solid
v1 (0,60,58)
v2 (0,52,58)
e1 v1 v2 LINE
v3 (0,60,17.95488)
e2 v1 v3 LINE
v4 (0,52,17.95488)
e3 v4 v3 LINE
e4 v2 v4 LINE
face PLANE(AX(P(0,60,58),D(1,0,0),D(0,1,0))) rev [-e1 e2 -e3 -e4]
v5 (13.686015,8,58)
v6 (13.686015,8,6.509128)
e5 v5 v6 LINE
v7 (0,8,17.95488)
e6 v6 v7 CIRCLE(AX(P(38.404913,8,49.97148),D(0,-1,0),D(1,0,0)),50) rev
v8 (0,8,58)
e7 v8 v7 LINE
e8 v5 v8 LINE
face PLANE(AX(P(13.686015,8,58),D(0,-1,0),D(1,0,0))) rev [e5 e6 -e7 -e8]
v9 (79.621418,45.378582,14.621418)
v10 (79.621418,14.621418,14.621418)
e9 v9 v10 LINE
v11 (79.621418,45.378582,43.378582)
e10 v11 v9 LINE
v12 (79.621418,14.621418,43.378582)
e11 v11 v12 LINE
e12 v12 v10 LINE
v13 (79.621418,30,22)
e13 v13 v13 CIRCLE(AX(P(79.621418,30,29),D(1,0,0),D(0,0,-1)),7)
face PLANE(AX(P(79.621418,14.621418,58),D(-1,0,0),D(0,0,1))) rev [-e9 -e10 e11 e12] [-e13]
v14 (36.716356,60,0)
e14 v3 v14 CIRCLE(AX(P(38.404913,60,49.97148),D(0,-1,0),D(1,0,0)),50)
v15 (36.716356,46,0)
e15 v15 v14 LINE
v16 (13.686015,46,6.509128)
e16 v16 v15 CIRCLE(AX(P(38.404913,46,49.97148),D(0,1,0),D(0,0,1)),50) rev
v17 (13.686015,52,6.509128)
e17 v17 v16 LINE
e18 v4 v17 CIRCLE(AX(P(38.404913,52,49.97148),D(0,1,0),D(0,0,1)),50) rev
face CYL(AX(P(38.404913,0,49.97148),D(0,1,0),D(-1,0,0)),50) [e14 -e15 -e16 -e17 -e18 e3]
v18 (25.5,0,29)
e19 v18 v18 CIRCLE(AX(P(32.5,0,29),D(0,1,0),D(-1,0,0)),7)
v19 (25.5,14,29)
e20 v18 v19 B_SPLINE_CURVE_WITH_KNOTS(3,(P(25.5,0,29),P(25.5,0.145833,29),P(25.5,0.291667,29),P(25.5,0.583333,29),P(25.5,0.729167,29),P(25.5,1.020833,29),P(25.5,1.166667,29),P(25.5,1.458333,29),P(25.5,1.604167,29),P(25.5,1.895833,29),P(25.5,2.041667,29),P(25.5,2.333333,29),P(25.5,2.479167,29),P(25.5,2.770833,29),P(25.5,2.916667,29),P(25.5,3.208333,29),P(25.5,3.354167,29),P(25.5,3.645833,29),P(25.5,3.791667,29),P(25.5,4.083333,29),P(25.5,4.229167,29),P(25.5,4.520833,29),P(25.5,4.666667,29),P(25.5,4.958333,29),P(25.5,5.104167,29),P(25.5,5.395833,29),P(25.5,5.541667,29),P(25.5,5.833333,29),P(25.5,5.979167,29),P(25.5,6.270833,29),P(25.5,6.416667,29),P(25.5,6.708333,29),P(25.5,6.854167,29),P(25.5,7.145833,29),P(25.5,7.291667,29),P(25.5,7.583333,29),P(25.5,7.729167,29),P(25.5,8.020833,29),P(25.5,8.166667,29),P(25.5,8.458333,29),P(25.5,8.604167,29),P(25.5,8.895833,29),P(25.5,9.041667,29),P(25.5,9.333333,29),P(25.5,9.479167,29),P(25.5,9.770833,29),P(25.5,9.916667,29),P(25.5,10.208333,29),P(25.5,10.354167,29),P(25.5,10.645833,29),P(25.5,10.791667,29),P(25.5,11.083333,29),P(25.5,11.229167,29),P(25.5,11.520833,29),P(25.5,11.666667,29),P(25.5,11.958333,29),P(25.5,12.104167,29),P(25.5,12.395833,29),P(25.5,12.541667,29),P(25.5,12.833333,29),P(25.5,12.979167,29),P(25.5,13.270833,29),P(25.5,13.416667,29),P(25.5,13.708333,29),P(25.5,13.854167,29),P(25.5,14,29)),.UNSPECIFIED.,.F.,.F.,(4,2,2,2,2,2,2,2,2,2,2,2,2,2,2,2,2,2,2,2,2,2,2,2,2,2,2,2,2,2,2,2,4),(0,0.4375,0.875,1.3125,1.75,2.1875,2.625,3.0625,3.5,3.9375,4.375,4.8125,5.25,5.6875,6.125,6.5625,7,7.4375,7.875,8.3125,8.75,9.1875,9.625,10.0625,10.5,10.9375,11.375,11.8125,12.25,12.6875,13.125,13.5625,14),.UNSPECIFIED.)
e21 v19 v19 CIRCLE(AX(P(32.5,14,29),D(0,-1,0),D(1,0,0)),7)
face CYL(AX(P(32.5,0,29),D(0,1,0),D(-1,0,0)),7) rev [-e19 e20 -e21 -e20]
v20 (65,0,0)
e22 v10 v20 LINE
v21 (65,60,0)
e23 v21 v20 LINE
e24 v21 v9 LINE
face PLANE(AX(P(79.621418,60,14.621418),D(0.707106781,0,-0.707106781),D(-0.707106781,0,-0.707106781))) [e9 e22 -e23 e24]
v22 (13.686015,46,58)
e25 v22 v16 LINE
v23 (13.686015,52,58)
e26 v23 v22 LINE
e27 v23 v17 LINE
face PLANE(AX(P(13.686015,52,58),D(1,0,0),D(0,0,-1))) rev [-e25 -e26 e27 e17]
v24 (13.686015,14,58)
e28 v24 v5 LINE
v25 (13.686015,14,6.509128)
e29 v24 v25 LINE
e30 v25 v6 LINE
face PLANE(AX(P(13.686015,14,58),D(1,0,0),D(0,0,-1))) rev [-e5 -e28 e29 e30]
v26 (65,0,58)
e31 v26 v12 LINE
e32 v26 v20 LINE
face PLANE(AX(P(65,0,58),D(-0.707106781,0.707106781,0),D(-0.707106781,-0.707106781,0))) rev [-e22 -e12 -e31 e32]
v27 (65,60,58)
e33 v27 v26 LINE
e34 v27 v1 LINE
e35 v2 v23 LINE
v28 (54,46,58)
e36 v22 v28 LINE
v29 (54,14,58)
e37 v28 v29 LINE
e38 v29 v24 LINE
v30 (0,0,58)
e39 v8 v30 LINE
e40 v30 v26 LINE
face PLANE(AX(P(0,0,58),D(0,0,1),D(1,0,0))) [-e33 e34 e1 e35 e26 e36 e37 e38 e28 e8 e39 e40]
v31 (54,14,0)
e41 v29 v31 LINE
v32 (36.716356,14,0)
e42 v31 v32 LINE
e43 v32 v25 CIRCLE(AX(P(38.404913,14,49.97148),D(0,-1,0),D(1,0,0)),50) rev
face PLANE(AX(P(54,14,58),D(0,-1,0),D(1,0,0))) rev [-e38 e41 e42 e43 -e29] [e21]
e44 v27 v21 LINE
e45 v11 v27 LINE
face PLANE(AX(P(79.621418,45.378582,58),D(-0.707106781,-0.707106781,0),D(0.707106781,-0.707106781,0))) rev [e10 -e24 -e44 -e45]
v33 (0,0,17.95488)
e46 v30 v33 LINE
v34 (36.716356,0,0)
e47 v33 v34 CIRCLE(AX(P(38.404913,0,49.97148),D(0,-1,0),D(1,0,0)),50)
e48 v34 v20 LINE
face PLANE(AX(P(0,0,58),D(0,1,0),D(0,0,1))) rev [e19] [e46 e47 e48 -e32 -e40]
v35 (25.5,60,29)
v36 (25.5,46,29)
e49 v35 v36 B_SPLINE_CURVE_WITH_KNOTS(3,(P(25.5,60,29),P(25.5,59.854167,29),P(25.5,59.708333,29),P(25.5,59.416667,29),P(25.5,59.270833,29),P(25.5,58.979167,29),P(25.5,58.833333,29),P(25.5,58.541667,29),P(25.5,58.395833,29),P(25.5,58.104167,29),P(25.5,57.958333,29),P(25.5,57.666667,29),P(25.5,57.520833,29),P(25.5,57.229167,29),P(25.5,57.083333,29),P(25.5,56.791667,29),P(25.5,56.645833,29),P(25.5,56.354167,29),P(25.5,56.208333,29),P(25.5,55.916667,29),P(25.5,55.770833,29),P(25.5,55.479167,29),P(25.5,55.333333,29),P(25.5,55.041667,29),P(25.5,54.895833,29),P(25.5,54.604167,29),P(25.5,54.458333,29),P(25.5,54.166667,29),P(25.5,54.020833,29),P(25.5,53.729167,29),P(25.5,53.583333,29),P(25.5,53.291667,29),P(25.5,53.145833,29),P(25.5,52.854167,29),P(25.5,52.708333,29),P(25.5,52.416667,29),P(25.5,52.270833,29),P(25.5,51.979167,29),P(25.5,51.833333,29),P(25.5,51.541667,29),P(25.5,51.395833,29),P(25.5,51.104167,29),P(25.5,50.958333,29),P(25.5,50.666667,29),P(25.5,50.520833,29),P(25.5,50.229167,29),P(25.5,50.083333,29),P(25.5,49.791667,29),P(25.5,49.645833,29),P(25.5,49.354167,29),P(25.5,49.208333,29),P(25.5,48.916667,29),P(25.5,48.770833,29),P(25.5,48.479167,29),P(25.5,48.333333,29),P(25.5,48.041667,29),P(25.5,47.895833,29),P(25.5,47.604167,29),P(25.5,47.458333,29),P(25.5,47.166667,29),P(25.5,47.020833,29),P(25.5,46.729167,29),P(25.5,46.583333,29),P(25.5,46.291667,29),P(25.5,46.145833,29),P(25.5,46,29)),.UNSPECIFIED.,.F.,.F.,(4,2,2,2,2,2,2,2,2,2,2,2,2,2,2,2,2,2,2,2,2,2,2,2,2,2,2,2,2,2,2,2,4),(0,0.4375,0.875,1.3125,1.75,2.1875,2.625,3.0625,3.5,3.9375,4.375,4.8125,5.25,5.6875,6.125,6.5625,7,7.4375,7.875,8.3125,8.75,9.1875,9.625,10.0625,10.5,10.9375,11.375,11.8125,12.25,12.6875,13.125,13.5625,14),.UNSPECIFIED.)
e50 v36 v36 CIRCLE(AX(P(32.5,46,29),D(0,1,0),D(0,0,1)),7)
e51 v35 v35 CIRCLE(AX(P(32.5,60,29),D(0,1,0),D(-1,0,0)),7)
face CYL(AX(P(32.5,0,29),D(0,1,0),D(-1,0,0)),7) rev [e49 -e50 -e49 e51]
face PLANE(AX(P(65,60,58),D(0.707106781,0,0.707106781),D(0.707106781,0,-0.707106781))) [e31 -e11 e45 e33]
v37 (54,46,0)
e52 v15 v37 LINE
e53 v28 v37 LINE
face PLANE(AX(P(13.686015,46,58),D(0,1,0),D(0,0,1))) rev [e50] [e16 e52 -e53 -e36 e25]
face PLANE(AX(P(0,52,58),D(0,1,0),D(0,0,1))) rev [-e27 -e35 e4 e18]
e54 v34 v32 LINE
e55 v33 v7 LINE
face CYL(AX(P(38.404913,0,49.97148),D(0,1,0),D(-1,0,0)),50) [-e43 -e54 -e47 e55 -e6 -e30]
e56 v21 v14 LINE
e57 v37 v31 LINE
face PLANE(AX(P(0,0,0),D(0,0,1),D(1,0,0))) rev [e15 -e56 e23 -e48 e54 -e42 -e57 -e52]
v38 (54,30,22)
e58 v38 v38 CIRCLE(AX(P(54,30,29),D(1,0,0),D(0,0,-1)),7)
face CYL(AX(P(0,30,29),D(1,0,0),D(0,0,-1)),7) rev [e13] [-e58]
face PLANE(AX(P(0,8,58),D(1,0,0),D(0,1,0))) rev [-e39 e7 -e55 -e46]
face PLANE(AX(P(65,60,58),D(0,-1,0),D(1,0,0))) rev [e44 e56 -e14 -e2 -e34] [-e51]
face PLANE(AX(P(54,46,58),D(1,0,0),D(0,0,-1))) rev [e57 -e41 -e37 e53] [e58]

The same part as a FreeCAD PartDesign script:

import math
import FreeCAD as App
import Part
import Sketcher
Q = App.Units.Quantity


def add_polygon(sketch, points):
    """Adds a closed chain of lines whose ends are joined by coincident constraints."""
    first, n = sketch.GeometryCount, len(points)
    for a, b in zip(points, points[1:] + points[:1]):
        sketch.addGeometry(Part.LineSegment(App.Vector(*a, 0), App.Vector(*b, 0)), False)
    for i in range(n):
        sketch.addConstraint(Sketcher.Constraint("Coincident", first + i, 2, first + (i + 1) % n, 1))

doc = App.newDocument("Part")
body = doc.addObject("PartDesign::Body", "Body")

sketch1 = doc.addObject("Sketcher::SketchObject", "Sketch")
body.addObject(sketch1)
sketch1.AttachmentSupport = (doc.XY_Plane, [""])
sketch1.MapMode = "FlatFace"
add_polygon(sketch1, [(0, 0), (65, 0), (80, 15), (80, 45), (65, 60), (0, 60), (0, 52), (14, 52), (14, 46), (54, 46), (54, 14), (14, 14), (14, 8), (0, 8)])
sketch1.addConstraint(Sketcher.Constraint("Horizontal", 0))
sketch1.addConstraint(Sketcher.Constraint("Vertical", 2))
sketch1.addConstraint(Sketcher.Constraint("Horizontal", 4))
sketch1.addConstraint(Sketcher.Constraint("Vertical", 5))
sketch1.addConstraint(Sketcher.Constraint("Horizontal", 6))
sketch1.addConstraint(Sketcher.Constraint("Vertical", 7))
sketch1.addConstraint(Sketcher.Constraint("Horizontal", 8))
sketch1.addConstraint(Sketcher.Constraint("Vertical", 9))
sketch1.addConstraint(Sketcher.Constraint("Horizontal", 10))
sketch1.addConstraint(Sketcher.Constraint("Vertical", 11))
sketch1.addConstraint(Sketcher.Constraint("Horizontal", 12))
sketch1.addConstraint(Sketcher.Constraint("Vertical", 13))
sketch1.addConstraint(Sketcher.Constraint("Coincident", 13, 2, -1, 1))
sketch1.addConstraint(Sketcher.Constraint("PointOnObject", 4, 2, -2))
sketch1.addConstraint(Sketcher.Constraint("Perpendicular", 1, 3))
sketch1.addConstraint(Sketcher.Constraint("Vertical", 0, 2, 3, 2))
sketch1.addConstraint(Sketcher.Constraint("Vertical", 7, 2, 10, 2))
sketch1.addConstraint(Sketcher.Constraint("Equal", 7, 11))
sketch1.addConstraint(Sketcher.Constraint("Equal", 5, 13))
sketch1.addConstraint(Sketcher.Constraint("Equal", 1, 3))
sketch1.addConstraint(Sketcher.Constraint("DistanceX", 0, 1, 0, 2, Q("65 mm")))
sketch1.addConstraint(Sketcher.Constraint("DistanceY", 5, 2, 5, 1, Q("8 mm")))
sketch1.addConstraint(Sketcher.Constraint("DistanceY", 7, 2, 7, 1, Q("6 mm")))
sketch1.addConstraint(Sketcher.Constraint("DistanceY", 9, 2, 9, 1, Q("32 mm")))
sketch1.addConstraint(Sketcher.Constraint("DistanceX", -1, 1, 8, 2, Q("54 mm")))
sketch1.addConstraint(Sketcher.Constraint("DistanceX", 6, 1, 6, 2, Q("13.686015 mm")))
sketch1.addConstraint(Sketcher.Constraint("DistanceY", 2, 1, 2, 2, Q("30.757165 mm")))
pad1 = doc.addObject("PartDesign::Pad", "Pad")
body.addObject(pad1)
pad1.Profile = sketch1
pad1.Length = 58

sketch2 = doc.addObject("Sketcher::SketchObject", "Sketch001")
body.addObject(sketch2)
sketch2.AttachmentSupport = (doc.YZ_Plane, [""])
sketch2.MapMode = "FlatFace"
sketch2.AttachmentOffset = App.Placement(App.Vector(0, 0, 79.621418), App.Rotation())
sketch2.addGeometry(Part.Circle(App.Vector(30, 29, 0), App.Vector(0, 0, 1), 7), False)
sketch2.addConstraint(Sketcher.Constraint("Diameter", 0, Q("14 mm")))
sketch2.addConstraint(Sketcher.Constraint("DistanceX", -1, 1, 0, 3, Q("30 mm")))
sketch2.addConstraint(Sketcher.Constraint("DistanceY", -1, 1, 0, 3, Q("29 mm")))
pocket1 = doc.addObject("PartDesign::Pocket", "Pocket")
body.addObject(pocket1)
pocket1.Profile = sketch2
pocket1.Type = "ThroughAll"

sketch3 = doc.addObject("Sketcher::SketchObject", "Sketch002")
body.addObject(sketch3)
sketch3.AttachmentSupport = (doc.XZ_Plane, [""])
sketch3.MapMode = "FlatFace"
sketch3.AttachmentOffset = App.Placement(App.Vector(0, 0, -60), App.Rotation())
sketch3.addGeometry(Part.Circle(App.Vector(32, 29, 0), App.Vector(0, 0, 1), 7), False)
sketch3.addConstraint(Sketcher.Constraint("Diameter", 0, Q("14 mm")))
sketch3.addConstraint(Sketcher.Constraint("DistanceY", -1, 1, 0, 3, Q("29 mm")))
sketch3.addConstraint(Sketcher.Constraint("DistanceX", -1, 1, 0, 3, Q("32.5 mm")))
pocket2 = doc.addObject("PartDesign::Pocket", "Pocket001")
body.addObject(pocket2)
pocket2.Profile = sketch3
pocket2.Type = "ThroughAll"
pocket2.Reversed = True

sketch4 = doc.addObject("Sketcher::SketchObject", "Sketch003")
body.addObject(sketch4)
sketch4.AttachmentSupport = (doc.XZ_Plane, [""])
sketch4.MapMode = "FlatFace"
add_polygon(sketch4, [(80, 0), (65, 0), (80, 15)])
add_polygon(sketch4, [(80, 43), (65, 58), (80, 58)])
sketch4.addConstraint(Sketcher.Constraint("Horizontal", 0))
sketch4.addConstraint(Sketcher.Constraint("Vertical", 2))
sketch4.addConstraint(Sketcher.Constraint("Horizontal", 4))
sketch4.addConstraint(Sketcher.Constraint("Vertical", 5))
sketch4.addConstraint(Sketcher.Constraint("PointOnObject", 0, 2, -1))
sketch4.addConstraint(Sketcher.Constraint("Perpendicular", 1, 3))
sketch4.addConstraint(Sketcher.Constraint("Vertical", 0, 2, 3, 2))
sketch4.addConstraint(Sketcher.Constraint("Vertical", 2, 2, 4, 2))
sketch4.addConstraint(Sketcher.Constraint("Equal", 4, 2))
sketch4.addConstraint(Sketcher.Constraint("DistanceX", -1, 1, 0, 2, Q("65 mm")))
sketch4.addConstraint(Sketcher.Constraint("DistanceY", -1, 1, 3, 2, Q("58 mm")))
sketch4.addConstraint(Sketcher.Constraint("DistanceX", 0, 2, 0, 1, Q("14.621418 mm")))
pocket3 = doc.addObject("PartDesign::Pocket", "Pocket002")
body.addObject(pocket3)
pocket3.Profile = sketch4
pocket3.Type = "ThroughAll"

sketch5 = doc.addObject("Sketcher::SketchObject", "Sketch004")
body.addObject(sketch5)
sketch5.AttachmentSupport = (doc.XZ_Plane, [""])
sketch5.MapMode = "FlatFace"
sketch5.AttachmentOffset = App.Placement(App.Vector(0, 0, -60), App.Rotation())
sketch5.addGeometry(Part.LineSegment(App.Vector(37, 0, 0), App.Vector(0, 0, 0)), False)
sketch5.addGeometry(Part.LineSegment(App.Vector(0, 0, 0), App.Vector(0, 18, 0)), False)
sketch5.addGeometry(Part.ArcOfCircle(Part.Circle(App.Vector(38, 50, 0), App.Vector(0, 0, 1), 50), math.radians(-140), math.radians(-92)), False)
sketch5.addConstraint(Sketcher.Constraint("Coincident", 0, 2, 1, 1))
sketch5.addConstraint(Sketcher.Constraint("Coincident", 1, 2, 2, 1))
sketch5.addConstraint(Sketcher.Constraint("Coincident", 2, 2, 0, 1))
sketch5.addConstraint(Sketcher.Constraint("Horizontal", 0))
sketch5.addConstraint(Sketcher.Constraint("Vertical", 1))
sketch5.addConstraint(Sketcher.Constraint("Coincident", 0, 2, -1, 1))
sketch5.addConstraint(Sketcher.Constraint("Radius", 2, Q("50 mm")))
sketch5.addConstraint(Sketcher.Constraint("DistanceY", 1, 1, 1, 2, Q("17.95488 mm")))
sketch5.addConstraint(Sketcher.Constraint("DistanceY", 1, 2, 2, 3, Q("32.016599 mm")))
pocket4 = doc.addObject("PartDesign::Pocket", "Pocket003")
body.addObject(pocket4)
pocket4.Profile = sketch5
pocket4.Type = "ThroughAll"
pocket4.Reversed = True

doc.recompute()
